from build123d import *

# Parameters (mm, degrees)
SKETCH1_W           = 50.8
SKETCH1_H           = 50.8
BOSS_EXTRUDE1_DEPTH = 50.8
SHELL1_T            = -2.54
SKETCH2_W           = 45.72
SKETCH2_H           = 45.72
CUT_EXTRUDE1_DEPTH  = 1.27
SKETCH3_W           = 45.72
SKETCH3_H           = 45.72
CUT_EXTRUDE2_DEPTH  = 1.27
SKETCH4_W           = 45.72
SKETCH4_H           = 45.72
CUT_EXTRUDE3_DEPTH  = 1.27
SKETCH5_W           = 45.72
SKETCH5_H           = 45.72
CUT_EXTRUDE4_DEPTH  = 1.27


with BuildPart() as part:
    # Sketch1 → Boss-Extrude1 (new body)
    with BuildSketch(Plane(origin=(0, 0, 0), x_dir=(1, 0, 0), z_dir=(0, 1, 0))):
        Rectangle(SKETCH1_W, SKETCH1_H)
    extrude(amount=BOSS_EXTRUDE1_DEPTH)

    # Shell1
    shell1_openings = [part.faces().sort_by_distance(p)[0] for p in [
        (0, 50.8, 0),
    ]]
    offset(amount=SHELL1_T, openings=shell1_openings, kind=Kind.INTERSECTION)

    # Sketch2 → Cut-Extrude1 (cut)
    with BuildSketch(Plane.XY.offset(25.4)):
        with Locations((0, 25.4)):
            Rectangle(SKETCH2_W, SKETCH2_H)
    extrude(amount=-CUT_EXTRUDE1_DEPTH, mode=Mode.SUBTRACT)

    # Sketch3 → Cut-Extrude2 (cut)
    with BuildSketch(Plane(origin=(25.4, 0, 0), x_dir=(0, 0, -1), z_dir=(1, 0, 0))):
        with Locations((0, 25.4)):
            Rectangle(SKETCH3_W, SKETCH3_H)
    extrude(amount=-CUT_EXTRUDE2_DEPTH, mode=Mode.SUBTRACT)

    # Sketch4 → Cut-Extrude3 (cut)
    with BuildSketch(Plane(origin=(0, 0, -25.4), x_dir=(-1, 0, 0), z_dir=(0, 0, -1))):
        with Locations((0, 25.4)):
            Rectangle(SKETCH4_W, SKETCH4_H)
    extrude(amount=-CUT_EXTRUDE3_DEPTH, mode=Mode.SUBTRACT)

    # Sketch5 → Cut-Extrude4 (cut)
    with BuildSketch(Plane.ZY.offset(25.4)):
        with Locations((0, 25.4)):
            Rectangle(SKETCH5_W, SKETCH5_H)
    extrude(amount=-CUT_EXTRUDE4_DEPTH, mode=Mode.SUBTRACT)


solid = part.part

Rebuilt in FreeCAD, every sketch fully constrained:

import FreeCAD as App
import Part
import Sketcher
from FreeCAD import Vector
Q = App.Units.Quantity


def faces_at(feature, points):
    """Names of the faces that lie closest to the given points."""
    faces = feature.Shape.Faces
    near = lambda p: min(range(len(faces)), key=lambda i: faces[i].distToShape(Part.Vertex(*p))[0])
    return sorted({f"Face{near(p) + 1}" for p in points})


def add_polygon(sketch, points):
    """Adds a closed chain of lines whose ends are joined by coincident constraints."""
    first, n = sketch.GeometryCount, len(points)
    for a, b in zip(points, points[1:] + points[:1]):
        sketch.addGeometry(Part.LineSegment(App.Vector(*a, 0), App.Vector(*b, 0)), False)
    for i in range(n):
        sketch.addConstraint(Sketcher.Constraint("Coincident", first + i, 2, first + (i + 1) % n, 1))

doc = App.newDocument("Part")
body = doc.addObject("PartDesign::Body", "Body")

# Sketch on XZ plane
sketch1 = body.newObject("Sketcher::SketchObject", "Sketch")
sketch1.AttachmentSupport = (doc.getObject("XZ_Plane"), [""])
sketch1.MapMode = "FlatFace"
add_polygon(sketch1, [(-25, -25), (-25, 25), (25, 25), (25, -25)])  # lines 0-3
sketch1.addConstraint([
    Sketcher.Constraint("Vertical", 0),
    Sketcher.Constraint("Horizontal", 1),
    Sketcher.Constraint("Vertical", 2),
    Sketcher.Constraint("Horizontal", 3),
    Sketcher.Constraint("Symmetric", 0, 2, 2, 2, -1, 1),
    Sketcher.Constraint("Equal", 3, 0),
    Sketcher.Constraint("DistanceX", 1, 1, 1, 2, Q("2 in")),
])
pad1 = body.newObject("PartDesign::Pad", "Pad")
pad1.Profile = sketch1
pad1.Length = Q("2 in")
pad1.Reversed = True
doc.recompute()

thickness = body.newObject("PartDesign::Thickness", "Thickness")
thickness.Base = (pad1, faces_at(pad1, [(0, 50.8, 0)]))
thickness.Value = Q("0.1 in")
thickness.Reversed = True
thickness.Join = "Intersection"

# Sketch on XY plane
sketch2 = body.newObject("Sketcher::SketchObject", "Sketch001")
sketch2.AttachmentSupport = (doc.getObject("XY_Plane"), [""])
sketch2.MapMode = "FlatFace"
sketch2.AttachmentOffset = App.Placement(Vector(0, 0, 1 * 25.4), App.Rotation())
add_polygon(sketch2, [(-23, 48), (-23, 3), (23, 3), (23, 48)])  # lines 0-3
sketch2.addConstraint([
    Sketcher.Constraint("Vertical", 0),
    Sketcher.Constraint("Horizontal", 1),
    Sketcher.Constraint("Vertical", 2),
    Sketcher.Constraint("Horizontal", 3),
    Sketcher.Constraint("Equal", 3, 0),
    Sketcher.Constraint("DistanceX", 1, 1, 1, 2, Q("1.8 in")),
    Sketcher.Constraint("DistanceX", 0, 2, -1, 1, Q("0.9 in")),
    Sketcher.Constraint("DistanceY", -1, 1, 0, 2, Q("0.1 in")),
])
pocket1 = body.newObject("PartDesign::Pocket", "Pocket")
pocket1.Profile = sketch2
pocket1.Length = Q("0.05 in")

# Sketch on YZ plane
sketch3 = body.newObject("Sketcher::SketchObject", "Sketch002")
sketch3.AttachmentSupport = (doc.getObject("YZ_Plane"), [""])
sketch3.MapMode = "FlatFace"
sketch3.AttachmentOffset = App.Placement(Vector(0, 0, 1 * 25.4), App.Rotation())
add_polygon(sketch3, [(48, 23), (3, 23), (3, -23), (48, -23)])  # lines 0-3
sketch3.addConstraint([
    Sketcher.Constraint("Horizontal", 0),
    Sketcher.Constraint("Vertical", 1),
    Sketcher.Constraint("Horizontal", 2),
    Sketcher.Constraint("Vertical", 3),
    Sketcher.Constraint("Equal", 2, 1),
    Sketcher.Constraint("DistanceX", 0, 2, 0, 1, Q("1.8 in")),
    Sketcher.Constraint("DistanceX", -1, 1, 0, 2, Q("0.1 in")),
    Sketcher.Constraint("DistanceY", -1, 1, 0, 2, Q("0.9 in")),
])
pocket2 = body.newObject("PartDesign::Pocket", "Pocket001")
pocket2.Profile = sketch3
pocket2.Length = Q("0.05 in")

# Sketch on XY plane
sketch4 = body.newObject("Sketcher::SketchObject", "Sketch003")
sketch4.AttachmentSupport = (doc.getObject("XY_Plane"), [""])
sketch4.MapMode = "FlatFace"
sketch4.AttachmentOffset = App.Placement(Vector(0, 0, -1 * 25.4), App.Rotation())
add_polygon(sketch4, [(23, 48), (23, 3), (-23, 3), (-23, 48)])  # lines 0-3
sketch4.addConstraint([
    Sketcher.Constraint("Vertical", 0),
    Sketcher.Constraint("Horizontal", 1),
    Sketcher.Constraint("Vertical", 2),
    Sketcher.Constraint("Horizontal", 3),
    Sketcher.Constraint("Equal", 3, 0),
    Sketcher.Constraint("DistanceX", 1, 2, 1, 1, Q("1.8 in")),
    Sketcher.Constraint("DistanceX", -1, 1, 0, 2, Q("0.9 in")),
    Sketcher.Constraint("DistanceY", -1, 1, 0, 2, Q("0.1 in")),
])
pocket3 = body.newObject("PartDesign::Pocket", "Pocket002")
pocket3.Profile = sketch4
pocket3.Length = Q("0.05 in")
pocket3.Reversed = True

# Sketch on YZ plane
sketch5 = body.newObject("Sketcher::SketchObject", "Sketch004")
sketch5.AttachmentSupport = (doc.getObject("YZ_Plane"), [""])
sketch5.MapMode = "FlatFace"
sketch5.AttachmentOffset = App.Placement(Vector(0, 0, -1 * 25.4), App.Rotation())
add_polygon(sketch5, [(48, -23), (3, -23), (3, 23), (48, 23)])  # lines 0-3
sketch5.addConstraint([
    Sketcher.Constraint("Horizontal", 0),
    Sketcher.Constraint("Vertical", 1),
    Sketcher.Constraint("Horizontal", 2),
    Sketcher.Constraint("Vertical", 3),
    Sketcher.Constraint("Equal", 2, 1),
    Sketcher.Constraint("DistanceX", 0, 2, 0, 1, Q("1.8 in")),
    Sketcher.Constraint("DistanceX", -1, 1, 0, 2, Q("0.1 in")),
    Sketcher.Constraint("DistanceY", 0, 2, -1, 1, Q("0.9 in")),
])
pocket4 = body.newObject("PartDesign::Pocket", "Pocket003")
pocket4.Profile = sketch5
pocket4.Length = Q("0.05 in")
pocket4.Reversed = True

doc.recompute()
